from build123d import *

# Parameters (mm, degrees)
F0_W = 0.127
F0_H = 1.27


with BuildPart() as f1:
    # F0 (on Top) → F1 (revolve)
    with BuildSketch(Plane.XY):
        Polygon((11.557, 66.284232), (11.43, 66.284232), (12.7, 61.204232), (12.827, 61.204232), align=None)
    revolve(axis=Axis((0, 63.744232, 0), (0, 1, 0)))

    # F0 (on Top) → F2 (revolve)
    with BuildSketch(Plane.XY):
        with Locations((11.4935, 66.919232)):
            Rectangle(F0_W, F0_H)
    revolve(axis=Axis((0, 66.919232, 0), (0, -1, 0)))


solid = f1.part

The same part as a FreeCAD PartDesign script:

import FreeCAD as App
import Part
import Sketcher
Q = App.Units.Quantity


def add_polygon(sketch, points):
    """Adds a closed chain of lines whose ends are joined by coincident constraints."""
    first, n = sketch.GeometryCount, len(points)
    for a, b in zip(points, points[1:] + points[:1]):
        sketch.addGeometry(Part.LineSegment(App.Vector(*a, 0), App.Vector(*b, 0)), False)
    for i in range(n):
        sketch.addConstraint(Sketcher.Constraint("Coincident", first + i, 2, first + (i + 1) % n, 1))

doc = App.newDocument("Part")
body = doc.addObject("PartDesign::Body", "Body")

sketch1 = doc.addObject("Sketcher::SketchObject", "Sketch")
body.addObject(sketch1)
sketch1.AttachmentSupport = (doc.XY_Plane, [""])
sketch1.MapMode = "FlatFace"
add_polygon(sketch1, [(11.56, 66.28), (11.43, 66.28), (12.7, 61.2), (12.83, 61.2)])
sketch1.addConstraint(Sketcher.Constraint("Horizontal", 0))
sketch1.addConstraint(Sketcher.Constraint("Horizontal", 2))
sketch1.addConstraint(Sketcher.Constraint("Parallel", 1, 3))
sketch1.addConstraint(Sketcher.Constraint("DistanceX", -1, 1, 1, 2, Q("0.5 in")))
sketch1.addConstraint(Sketcher.Constraint("DistanceY", 1, 2, 0, 2, Q("0.2 in")))
sketch1.addConstraint(Sketcher.Constraint("DistanceX", 0, 2, 0, 1, Q("0.005 in")))
sketch1.addConstraint(Sketcher.Constraint("DistanceX", -1, 1, 0, 2, Q("0.45 in")))
sketch1.addConstraint(Sketcher.Constraint("DistanceY", -1, 1, 1, 2, Q("61.204232 mm")))
revolution = doc.addObject("PartDesign::Revolution", "Revolution")
body.addObject(revolution)
revolution.Profile = sketch1
revolution.ReferenceAxis = (sketch1, ["V_Axis"])
revolution.Angle = 360

sketch2 = doc.addObject("Sketcher::SketchObject", "Sketch001")
body.addObject(sketch2)
sketch2.AttachmentSupport = (doc.XY_Plane, [""])
sketch2.MapMode = "FlatFace"
add_polygon(sketch2, [(11.43, 67.55), (11.43, 66.28), (11.56, 66.28), (11.56, 67.55)])
sketch2.addConstraint(Sketcher.Constraint("Vertical", 0))
sketch2.addConstraint(Sketcher.Constraint("Horizontal", 1))
sketch2.addConstraint(Sketcher.Constraint("Vertical", 2))
sketch2.addConstraint(Sketcher.Constraint("Horizontal", 3))
sketch2.addConstraint(Sketcher.Constraint("DistanceY", 0, 2, 0, 1, Q("0.05 in")))
sketch2.addConstraint(Sketcher.Constraint("DistanceX", 1, 1, 1, 2, Q("0.005 in")))
sketch2.addConstraint(Sketcher.Constraint("DistanceX", -1, 1, 0, 2, Q("0.45 in")))
sketch2.addConstraint(Sketcher.Constraint("DistanceY", -1, 1, 2, 2, Q("67.554232 mm")))
revolution2 = doc.addObject("PartDesign::Revolution", "Revolution001")
body.addObject(revolution2)
revolution2.Profile = sketch2
revolution2.ReferenceAxis = (sketch2, ["V_Axis"])
revolution2.Angle = 360

doc.recompute()
